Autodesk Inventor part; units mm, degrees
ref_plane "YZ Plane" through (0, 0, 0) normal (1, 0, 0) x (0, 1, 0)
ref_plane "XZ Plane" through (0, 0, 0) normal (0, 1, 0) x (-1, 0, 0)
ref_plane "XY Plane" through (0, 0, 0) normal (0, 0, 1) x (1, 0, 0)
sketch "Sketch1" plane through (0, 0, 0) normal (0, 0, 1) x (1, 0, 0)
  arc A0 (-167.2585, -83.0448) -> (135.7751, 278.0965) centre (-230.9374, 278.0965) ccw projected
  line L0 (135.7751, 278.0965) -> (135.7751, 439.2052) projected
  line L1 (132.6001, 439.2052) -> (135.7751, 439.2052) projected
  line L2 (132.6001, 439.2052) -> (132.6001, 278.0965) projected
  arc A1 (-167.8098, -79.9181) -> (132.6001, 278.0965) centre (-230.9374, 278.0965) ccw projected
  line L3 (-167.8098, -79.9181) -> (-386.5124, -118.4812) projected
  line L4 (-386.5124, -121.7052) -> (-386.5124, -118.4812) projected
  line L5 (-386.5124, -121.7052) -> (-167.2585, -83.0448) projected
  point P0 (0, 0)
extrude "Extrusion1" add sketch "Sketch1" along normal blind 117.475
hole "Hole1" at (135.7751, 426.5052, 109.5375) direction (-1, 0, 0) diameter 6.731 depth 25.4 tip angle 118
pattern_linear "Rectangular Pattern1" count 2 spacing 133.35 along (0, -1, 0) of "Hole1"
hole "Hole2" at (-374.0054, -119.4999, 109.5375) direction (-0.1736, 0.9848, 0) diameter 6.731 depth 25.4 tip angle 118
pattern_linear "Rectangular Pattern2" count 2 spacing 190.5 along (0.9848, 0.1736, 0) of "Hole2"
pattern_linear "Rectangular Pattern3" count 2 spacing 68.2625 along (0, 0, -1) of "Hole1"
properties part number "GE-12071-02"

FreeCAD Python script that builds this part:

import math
import FreeCAD as App
import Part
import Sketcher
from FreeCAD import Vector
Q = App.Units.Quantity

doc = App.newDocument("Part")
params = doc.addObject("Spreadsheet::Sheet", "Params")
for row, (alias, value) in enumerate([
    ("sketch1_radius", "14.4375 in"),
    ("sketch1_radius2", "14.3125 in"),
    ("pad1_length", "4.625 in"),
    ("sketch2_diameter", "0.265 in"),
    ("hole_diameter", "0.265 in"),
    ("hole_depth", "1 in"),
    ("linearpattern_pitch", "5.25 in"),
    ("sketch3_diameter", "0.265 in"),
    ("hole2_diameter", "0.265 in"),
    ("hole2_depth", "1 in"),
    ("linearpattern2_pitch", "7.5 in"),
    ("linearpattern3_pitch", "2.6875 in"),
], start=1):
    params.set(f"A{row}", alias)
    params.set(f"B{row}", "=" + value)
    params.setAlias(f"B{row}", alias)

body = doc.addObject("PartDesign::Body", "Body")

# Sketch on XY plane
sketch1 = doc.addObject("Sketcher::SketchObject", "Sketch")
body.addObject(sketch1)
sketch1.AttachmentSupport = (doc.XY_Plane, [""])
sketch1.MapMode = "FlatFace"
sketch1.addGeometry(Part.LineSegment(Vector(-386.5, -121.7, 0), Vector(-167.3, -83, 0)), False)
sketch1.addGeometry(Part.ArcOfCircle(Part.Circle(Vector(-230.9, 278.1, 0), Vector(0, 0, 1), 366.7), math.radians(-80), math.radians(0)), False)
sketch1.addGeometry(Part.LineSegment(Vector(135.8, 278.1, 0), Vector(135.8, 439.2, 0)), False)
sketch1.addGeometry(Part.LineSegment(Vector(135.8, 439.2, 0), Vector(132.6, 439.2, 0)), False)
sketch1.addGeometry(Part.LineSegment(Vector(132.6, 439.2, 0), Vector(132.6, 278.1, 0)), False)
sketch1.addGeometry(Part.ArcOfCircle(Part.Circle(Vector(-230.9, 278.1, 0), Vector(0, 0, 1), 363.5), math.radians(-80), math.radians(0)), False)
sketch1.addGeometry(Part.LineSegment(Vector(-167.8, -79.9, 0), Vector(-386.5, -118.5, 0)), False)
sketch1.addGeometry(Part.LineSegment(Vector(-386.5, -118.5, 0), Vector(-386.5, -121.7, 0)), False)
sketch1.addConstraint(Sketcher.Constraint("Tangent", 0, 2, 1, 1))
sketch1.addConstraint(Sketcher.Constraint("Tangent", 1, 2, 2, 1))
sketch1.addConstraint(Sketcher.Constraint("Coincident", 2, 2, 3, 1))
sketch1.addConstraint(Sketcher.Constraint("Coincident", 3, 2, 4, 1))
sketch1.addConstraint(Sketcher.Constraint("Tangent", 4, 2, 5, 2))
sketch1.addConstraint(Sketcher.Constraint("Tangent", 5, 1, 6, 1))
sketch1.addConstraint(Sketcher.Constraint("Coincident", 6, 2, 7, 1))
sketch1.addConstraint(Sketcher.Constraint("Coincident", 7, 2, 0, 1))
sketch1.addConstraint(Sketcher.Constraint("Vertical", 2))
sketch1.addConstraint(Sketcher.Constraint("Horizontal", 3))
sketch1.addConstraint(Sketcher.Constraint("Vertical", 4))
sketch1.addConstraint(Sketcher.Constraint("Vertical", 7))
sketch1.addConstraint(Sketcher.Constraint("Coincident", 5, 3, 1, 3))
sketch1.addConstraint(Sketcher.Constraint("Parallel", 0, 6))
sketch1.addConstraint(Sketcher.Constraint("Angle", 0, Q("10 deg")))
sketch1.addConstraint(Sketcher.Constraint("Radius", 1, Q("14.4375 in")))
sketch1.addConstraint(Sketcher.Constraint("Radius", 5, Q("14.3125 in")))
sketch1.addConstraint(Sketcher.Constraint("DistanceX", 6, 2, 1, 3, Q("6.125 in")))
sketch1.addConstraint(Sketcher.Constraint("DistanceY", 2, 1, 2, 2, Q("161.1087 mm")))
sketch1.addConstraint(Sketcher.Constraint("DistanceX", 1, 3, -1, 1, Q("230.9374 mm")))
sketch1.addConstraint(Sketcher.Constraint("DistanceY", -1, 1, 1, 3, Q("278.0965 mm")))
sketch1.setExpression("Constraints[15]", "Params.sketch1_radius")
sketch1.setExpression("Constraints[16]", "Params.sketch1_radius2")
pad1 = doc.addObject("PartDesign::Pad", "Pad")
body.addObject(pad1)
pad1.Profile = sketch1
pad1.setExpression("Length", "Params.pad1_length")

# Sketch on YZ plane
sketch2 = doc.addObject("Sketcher::SketchObject", "Sketch001")
body.addObject(sketch2)
sketch2.AttachmentSupport = (doc.YZ_Plane, [""])
sketch2.MapMode = "FlatFace"
sketch2.AttachmentOffset = App.Placement(Vector(0, 0, 135.7751), App.Rotation())
sketch2.addGeometry(Part.Circle(Vector(426.5, 109.5, 0), Vector(0, 0, 1), 3.4), False)
sketch2.addConstraint(Sketcher.Constraint("Diameter", 0, Q("0.265 in")))
sketch2.addConstraint(Sketcher.Constraint("DistanceY", -1, 1, 0, 3, Q("4.3125 in")))
sketch2.addConstraint(Sketcher.Constraint("DistanceX", -1, 1, 0, 3, Q("426.5052 mm")))
sketch2.setExpression("Constraints[0]", "Params.sketch2_diameter")
doc.recompute()
hole = doc.addObject("PartDesign::Hole", "Hole")
body.addObject(hole)
hole.Profile = sketch2
hole.ThreadType = "None"
hole.setExpression("Diameter", "Params.hole_diameter")
hole.DepthType = "Dimension"
hole.setExpression("Depth", "Params.hole_depth")
hole.DrillPoint = "Angled"
hole.DrillPointAngle = 118
doc.recompute()

linearpattern = doc.addObject("PartDesign::LinearPattern", "LinearPattern")
body.addObject(linearpattern)
linearpattern.Originals = [hole]
linearpattern.Direction = (doc.Y_Axis, [""])
linearpattern.Mode = "offset"
linearpattern.setExpression("Offset", "Params.linearpattern_pitch")
linearpattern.Occurrences = 2
linearpattern.Reversed = True
body.Tip = linearpattern

# Sketch on an angled plane
sketch3 = doc.addObject("Sketcher::SketchObject", "Sketch002")
body.addObject(sketch3)
sketch3.Placement = App.Placement(Vector(9.158044, -51.937847, 0), App.Rotation(Vector(0.984807753, 0.173648178, 0), Vector(0, 0, 1), Vector(0.173648178, -0.984807753, 0), "ZXY"))
sketch3.addGeometry(Part.Circle(Vector(-389.1, 109.5, 0), Vector(0, 0, 1), 3.4), False)
sketch3.addConstraint(Sketcher.Constraint("Diameter", 0, Q("0.265 in")))
sketch3.addConstraint(Sketcher.Constraint("DistanceY", -1, 1, 0, 3, Q("4.3125 in")))
sketch3.addConstraint(Sketcher.Constraint("DistanceX", 0, 3, -1, 1, Q("15.3179 in")))
sketch3.setExpression("Constraints[0]", "Params.sketch3_diameter")
doc.recompute()
hole2 = doc.addObject("PartDesign::Hole", "Hole001")
body.addObject(hole2)
hole2.Profile = sketch3
hole2.ThreadType = "None"
hole2.setExpression("Diameter", "Params.hole2_diameter")
hole2.DepthType = "Dimension"
hole2.setExpression("Depth", "Params.hole2_depth")
hole2.DrillPoint = "Angled"
hole2.DrillPointAngle = 118
doc.recompute()

datumline = doc.addObject("PartDesign::Line", "DatumLine")
body.addObject(datumline)
datumline.Placement = App.Placement(Vector(0, 0, 0), App.Rotation(Vector(0, 0, 1), Vector(0.984807753, 0.173648178, 0)))
linearpattern2 = doc.addObject("PartDesign::LinearPattern", "LinearPattern001")
body.addObject(linearpattern2)
linearpattern2.Originals = [hole2]
linearpattern2.Direction = (datumline, [""])
linearpattern2.Mode = "offset"
linearpattern2.setExpression("Offset", "Params.linearpattern2_pitch")
linearpattern2.Occurrences = 2
body.Tip = linearpattern2
doc.recompute()

linearpattern3 = doc.addObject("PartDesign::LinearPattern", "LinearPattern002")
body.addObject(linearpattern3)
linearpattern3.Originals = [hole]
linearpattern3.Direction = (doc.Z_Axis, [""])
linearpattern3.Mode = "offset"
linearpattern3.setExpression("Offset", "Params.linearpattern3_pitch")
linearpattern3.Occurrences = 2
linearpattern3.Reversed = True
body.Tip = linearpattern3

doc.recompute()
